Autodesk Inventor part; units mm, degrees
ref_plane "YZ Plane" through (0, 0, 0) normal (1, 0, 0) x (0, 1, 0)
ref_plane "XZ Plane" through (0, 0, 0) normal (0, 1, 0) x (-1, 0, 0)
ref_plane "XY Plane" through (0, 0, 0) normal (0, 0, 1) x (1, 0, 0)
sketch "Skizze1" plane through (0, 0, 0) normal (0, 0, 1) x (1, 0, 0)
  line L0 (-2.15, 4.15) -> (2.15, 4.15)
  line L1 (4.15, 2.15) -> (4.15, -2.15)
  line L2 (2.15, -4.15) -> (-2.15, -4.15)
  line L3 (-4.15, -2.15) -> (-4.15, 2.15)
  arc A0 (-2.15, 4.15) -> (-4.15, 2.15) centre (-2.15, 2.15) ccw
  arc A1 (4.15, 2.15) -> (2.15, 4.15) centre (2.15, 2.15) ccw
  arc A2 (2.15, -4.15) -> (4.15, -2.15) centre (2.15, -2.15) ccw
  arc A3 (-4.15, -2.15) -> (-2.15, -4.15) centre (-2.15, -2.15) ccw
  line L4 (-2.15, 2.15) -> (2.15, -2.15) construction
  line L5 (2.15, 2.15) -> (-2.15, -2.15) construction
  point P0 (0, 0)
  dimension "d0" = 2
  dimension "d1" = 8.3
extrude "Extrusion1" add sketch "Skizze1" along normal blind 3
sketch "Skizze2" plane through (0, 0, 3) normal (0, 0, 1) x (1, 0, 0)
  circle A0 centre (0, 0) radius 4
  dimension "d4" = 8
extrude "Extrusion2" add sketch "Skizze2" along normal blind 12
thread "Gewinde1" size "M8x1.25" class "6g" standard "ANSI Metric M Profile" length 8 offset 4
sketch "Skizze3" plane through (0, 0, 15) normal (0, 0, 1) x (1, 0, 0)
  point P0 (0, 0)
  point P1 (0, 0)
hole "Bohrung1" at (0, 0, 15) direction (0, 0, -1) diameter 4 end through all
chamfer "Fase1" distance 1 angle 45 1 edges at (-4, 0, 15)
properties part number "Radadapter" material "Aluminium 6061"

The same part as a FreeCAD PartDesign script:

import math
import FreeCAD as App
import Part
import Sketcher
from FreeCAD import Vector


def edges_at(feature, points):
    """Names of the edges that pass closest to the given points."""
    edges = feature.Shape.Edges
    near = lambda p: min(range(len(edges)), key=lambda i: edges[i].distToShape(Part.Vertex(*p))[0])
    return sorted({f"Edge{near(p) + 1}" for p in points})

doc = App.newDocument("Part")
body = doc.addObject("PartDesign::Body", "Body")

# Sketch on XY plane
sketch1 = doc.addObject("Sketcher::SketchObject", "Sketch")
body.addObject(sketch1)
sketch1.AttachmentSupport = (doc.XY_Plane, [""])
sketch1.MapMode = "FlatFace"
sketch1.addGeometry([
    Part.LineSegment(Vector(2.1, 4.2, 0), Vector(-2.1, 4.2, 0)),  # 0
    Part.ArcOfCircle(Part.Circle(Vector(-2.1, 2.1, 0), Vector(0, 0, 1), 2), math.radians(90), math.radians(180)),  # 1
    Part.LineSegment(Vector(-4.2, 2.1, 0), Vector(-4.2, -2.1, 0)),  # 2
    Part.ArcOfCircle(Part.Circle(Vector(-2.1, -2.1, 0), Vector(0, 0, 1), 2), math.radians(180), math.radians(270)),  # 3
    Part.LineSegment(Vector(-2.1, -4.2, 0), Vector(2.1, -4.2, 0)),  # 4
    Part.ArcOfCircle(Part.Circle(Vector(2.1, -2.1, 0), Vector(0, 0, 1), 2), math.radians(-90), math.radians(0)),  # 5
    Part.LineSegment(Vector(4.2, -2.1, 0), Vector(4.2, 2.1, 0)),  # 6
    Part.ArcOfCircle(Part.Circle(Vector(2.1, 2.1, 0), Vector(0, 0, 1), 2), math.radians(0), math.radians(90)),  # 7
], False)
sketch1.addConstraint([
    Sketcher.Constraint("Tangent", 0, 2, 1, 1),
    Sketcher.Constraint("Tangent", 1, 2, 2, 1),
    Sketcher.Constraint("Tangent", 2, 2, 3, 1),
    Sketcher.Constraint("Tangent", 3, 2, 4, 1),
    Sketcher.Constraint("Tangent", 4, 2, 5, 1),
    Sketcher.Constraint("Tangent", 5, 2, 6, 1),
    Sketcher.Constraint("Tangent", 6, 2, 7, 1),
    Sketcher.Constraint("Tangent", 7, 2, 0, 1),
    Sketcher.Constraint("Horizontal", 0),
    Sketcher.Constraint("Vertical", 2),
    Sketcher.Constraint("Horizontal", 4),
    Sketcher.Constraint("Vertical", 6),
    Sketcher.Constraint("Equal", 1, 3),
    Sketcher.Constraint("Equal", 3, 5),
    Sketcher.Constraint("Equal", 5, 7),
    Sketcher.Constraint("Symmetric", 1, 3, 5, 3, -1, 1),
    Sketcher.Constraint("Equal", 4, 2),
    Sketcher.Constraint("Radius", 1, 2.0),
    Sketcher.Constraint("DistanceX", 0, 2, 0, 1, 4.3),
])
pad1 = doc.addObject("PartDesign::Pad", "Pad")
body.addObject(pad1)
pad1.Profile = sketch1
pad1.Length = 3

# Sketch on XY plane
sketch2 = doc.addObject("Sketcher::SketchObject", "Sketch001")
body.addObject(sketch2)
sketch2.AttachmentSupport = (doc.XY_Plane, [""])
sketch2.MapMode = "FlatFace"
sketch2.AttachmentOffset = App.Placement(Vector(0, 0, 3), App.Rotation())
sketch2.addGeometry(Part.Circle(Vector(0, 0, 0), Vector(0, 0, 1), 4), False)
sketch2.addConstraint([
    Sketcher.Constraint("Coincident", 0, 3, -1, 1),
    Sketcher.Constraint("Diameter", 0, 8.0),
])
pad2 = doc.addObject("PartDesign::Pad", "Pad001")
body.addObject(pad2)
pad2.Profile = sketch2
pad2.Length = 12

# Sketch on XY plane
sketch3 = doc.addObject("Sketcher::SketchObject", "Sketch002")
body.addObject(sketch3)
sketch3.AttachmentSupport = (doc.XY_Plane, [""])
sketch3.MapMode = "FlatFace"
sketch3.AttachmentOffset = App.Placement(Vector(0, 0, 15), App.Rotation())
sketch3.addGeometry(Part.Circle(Vector(0, 0, 0), Vector(0, 0, 1), 2), False)
sketch3.addConstraint([
    Sketcher.Constraint("Coincident", 0, 3, -1, 1),
    Sketcher.Constraint("Diameter", 0, 4.0),
])
doc.recompute()
hole = doc.addObject("PartDesign::Hole", "Hole")
body.addObject(hole)
hole.Profile = sketch3
hole.ThreadType = "None"
hole.Diameter = 4
hole.DepthType = "ThroughAll"
doc.recompute()

chamfer = doc.addObject("PartDesign::Chamfer", "Chamfer")
body.addObject(chamfer)
chamfer.Base = (hole, edges_at(hole, [(-4, 0, 15)]))
chamfer.Size = 1

doc.recompute()
